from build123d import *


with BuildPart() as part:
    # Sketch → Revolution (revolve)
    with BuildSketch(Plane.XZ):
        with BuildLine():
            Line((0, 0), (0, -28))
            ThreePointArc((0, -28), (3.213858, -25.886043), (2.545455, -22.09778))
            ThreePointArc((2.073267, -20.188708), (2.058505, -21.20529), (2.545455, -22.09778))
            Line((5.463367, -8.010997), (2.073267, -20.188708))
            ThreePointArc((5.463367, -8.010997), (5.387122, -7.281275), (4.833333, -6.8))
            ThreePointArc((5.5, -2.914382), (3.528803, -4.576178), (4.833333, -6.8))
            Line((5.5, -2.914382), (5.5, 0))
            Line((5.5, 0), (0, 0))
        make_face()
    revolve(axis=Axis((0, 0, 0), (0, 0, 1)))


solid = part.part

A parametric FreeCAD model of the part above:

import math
import FreeCAD as App
import Part
import Sketcher
from FreeCAD import Vector

doc = App.newDocument("Part")
body = doc.addObject("PartDesign::Body", "Body")

# Sketch on XZ plane
sketch1 = body.newObject("Sketcher::SketchObject", "Sketch")
sketch1.AttachmentSupport = (doc.getObject("XZ_Plane"), [""])
sketch1.MapMode = "FlatFace"
sketch1.addGeometry([
    Part.LineSegment(Vector(0, 0, 0), Vector(0, -28, 0)),  # 0
    Part.ArcOfCircle(Part.Circle(Vector(-0.000001, -24.5, 0), Vector(0, 0, 1), 3.5), math.radians(-89.999992), math.radians(43.341742)),  # 1
    Part.ArcOfCircle(Part.Circle(Vector(3.999994, -20.725085, 0), Vector(0, 0, 1), 1.999994), math.radians(164.443463), math.radians(223.341856)),  # 2
    Part.LineSegment(Vector(2.073267, -20.188708, 0), Vector(5.463367, -8.010997, 0)),  # 3
    Part.ArcOfCircle(Part.Circle(Vector(4.499998, -7.74281, 0), Vector(0, 0, 1), 1.000002), math.radians(-15.556363), math.radians(70.528729)),  # 4
    Part.ArcOfCircle(Part.Circle(Vector(5.5, -4.914382, 0), Vector(0, 0, 1), 2), math.radians(90.000004), math.radians(250.528765)),  # 5
    Part.LineSegment(Vector(5.5, -2.914382, 0), Vector(5.5, 0, 0)),  # 6
    Part.LineSegment(Vector(5.5, 0, 0), Vector(0, 0, 0)),  # 7
], False)
sketch1.addConstraint([
    Sketcher.Constraint("Coincident", 0, 2, 1, 1),
    Sketcher.Constraint("Tangent", 1, 2, 2, 2),
    Sketcher.Constraint("Tangent", 2, 1, 3, 1),
    Sketcher.Constraint("Tangent", 3, 2, 4, 1),
    Sketcher.Constraint("Tangent", 4, 2, 5, 2),
    Sketcher.Constraint("Coincident", 5, 1, 6, 1),
    Sketcher.Constraint("Coincident", 6, 2, 7, 1),
    Sketcher.Constraint("Coincident", 7, 2, 0, 1),
    Sketcher.Constraint("Vertical", 0),
    Sketcher.Constraint("Vertical", 6),
    Sketcher.Constraint("Horizontal", 7),
    Sketcher.Constraint("Coincident", 7, 2, -1, 1),
    Sketcher.Constraint("PointOnObject", 1, 3, -2),
    Sketcher.Constraint("Radius", 4, 1.000002),
    Sketcher.Constraint("Radius", 5, 2.0),
    Sketcher.Constraint("Radius", 1, 3.5),
    Sketcher.Constraint("DistanceY", 0, 2, 0, 1, 28.0),
    Sketcher.Constraint("DistanceX", 7, 2, 7, 1, 5.5),
    Sketcher.Constraint("DistanceX", 4, 3, 5, 3, 1.000002),
    Sketcher.Constraint("DistanceX", 4, 3, 5, 1, 1.000002),
    Sketcher.Constraint("DistanceY", 4, 2, -1, 1, 6.8),
    Sketcher.Constraint("Radius", 2, 1.999994),
    Sketcher.Constraint("DistanceX", 2, 1, 3, 2, 3.3901),
])
revolution = body.newObject("PartDesign::Revolution", "Revolution")
revolution.Profile = sketch1
revolution.ReferenceAxis = (sketch1, ["V_Axis"])
revolution.Angle = 360

doc.recompute()
